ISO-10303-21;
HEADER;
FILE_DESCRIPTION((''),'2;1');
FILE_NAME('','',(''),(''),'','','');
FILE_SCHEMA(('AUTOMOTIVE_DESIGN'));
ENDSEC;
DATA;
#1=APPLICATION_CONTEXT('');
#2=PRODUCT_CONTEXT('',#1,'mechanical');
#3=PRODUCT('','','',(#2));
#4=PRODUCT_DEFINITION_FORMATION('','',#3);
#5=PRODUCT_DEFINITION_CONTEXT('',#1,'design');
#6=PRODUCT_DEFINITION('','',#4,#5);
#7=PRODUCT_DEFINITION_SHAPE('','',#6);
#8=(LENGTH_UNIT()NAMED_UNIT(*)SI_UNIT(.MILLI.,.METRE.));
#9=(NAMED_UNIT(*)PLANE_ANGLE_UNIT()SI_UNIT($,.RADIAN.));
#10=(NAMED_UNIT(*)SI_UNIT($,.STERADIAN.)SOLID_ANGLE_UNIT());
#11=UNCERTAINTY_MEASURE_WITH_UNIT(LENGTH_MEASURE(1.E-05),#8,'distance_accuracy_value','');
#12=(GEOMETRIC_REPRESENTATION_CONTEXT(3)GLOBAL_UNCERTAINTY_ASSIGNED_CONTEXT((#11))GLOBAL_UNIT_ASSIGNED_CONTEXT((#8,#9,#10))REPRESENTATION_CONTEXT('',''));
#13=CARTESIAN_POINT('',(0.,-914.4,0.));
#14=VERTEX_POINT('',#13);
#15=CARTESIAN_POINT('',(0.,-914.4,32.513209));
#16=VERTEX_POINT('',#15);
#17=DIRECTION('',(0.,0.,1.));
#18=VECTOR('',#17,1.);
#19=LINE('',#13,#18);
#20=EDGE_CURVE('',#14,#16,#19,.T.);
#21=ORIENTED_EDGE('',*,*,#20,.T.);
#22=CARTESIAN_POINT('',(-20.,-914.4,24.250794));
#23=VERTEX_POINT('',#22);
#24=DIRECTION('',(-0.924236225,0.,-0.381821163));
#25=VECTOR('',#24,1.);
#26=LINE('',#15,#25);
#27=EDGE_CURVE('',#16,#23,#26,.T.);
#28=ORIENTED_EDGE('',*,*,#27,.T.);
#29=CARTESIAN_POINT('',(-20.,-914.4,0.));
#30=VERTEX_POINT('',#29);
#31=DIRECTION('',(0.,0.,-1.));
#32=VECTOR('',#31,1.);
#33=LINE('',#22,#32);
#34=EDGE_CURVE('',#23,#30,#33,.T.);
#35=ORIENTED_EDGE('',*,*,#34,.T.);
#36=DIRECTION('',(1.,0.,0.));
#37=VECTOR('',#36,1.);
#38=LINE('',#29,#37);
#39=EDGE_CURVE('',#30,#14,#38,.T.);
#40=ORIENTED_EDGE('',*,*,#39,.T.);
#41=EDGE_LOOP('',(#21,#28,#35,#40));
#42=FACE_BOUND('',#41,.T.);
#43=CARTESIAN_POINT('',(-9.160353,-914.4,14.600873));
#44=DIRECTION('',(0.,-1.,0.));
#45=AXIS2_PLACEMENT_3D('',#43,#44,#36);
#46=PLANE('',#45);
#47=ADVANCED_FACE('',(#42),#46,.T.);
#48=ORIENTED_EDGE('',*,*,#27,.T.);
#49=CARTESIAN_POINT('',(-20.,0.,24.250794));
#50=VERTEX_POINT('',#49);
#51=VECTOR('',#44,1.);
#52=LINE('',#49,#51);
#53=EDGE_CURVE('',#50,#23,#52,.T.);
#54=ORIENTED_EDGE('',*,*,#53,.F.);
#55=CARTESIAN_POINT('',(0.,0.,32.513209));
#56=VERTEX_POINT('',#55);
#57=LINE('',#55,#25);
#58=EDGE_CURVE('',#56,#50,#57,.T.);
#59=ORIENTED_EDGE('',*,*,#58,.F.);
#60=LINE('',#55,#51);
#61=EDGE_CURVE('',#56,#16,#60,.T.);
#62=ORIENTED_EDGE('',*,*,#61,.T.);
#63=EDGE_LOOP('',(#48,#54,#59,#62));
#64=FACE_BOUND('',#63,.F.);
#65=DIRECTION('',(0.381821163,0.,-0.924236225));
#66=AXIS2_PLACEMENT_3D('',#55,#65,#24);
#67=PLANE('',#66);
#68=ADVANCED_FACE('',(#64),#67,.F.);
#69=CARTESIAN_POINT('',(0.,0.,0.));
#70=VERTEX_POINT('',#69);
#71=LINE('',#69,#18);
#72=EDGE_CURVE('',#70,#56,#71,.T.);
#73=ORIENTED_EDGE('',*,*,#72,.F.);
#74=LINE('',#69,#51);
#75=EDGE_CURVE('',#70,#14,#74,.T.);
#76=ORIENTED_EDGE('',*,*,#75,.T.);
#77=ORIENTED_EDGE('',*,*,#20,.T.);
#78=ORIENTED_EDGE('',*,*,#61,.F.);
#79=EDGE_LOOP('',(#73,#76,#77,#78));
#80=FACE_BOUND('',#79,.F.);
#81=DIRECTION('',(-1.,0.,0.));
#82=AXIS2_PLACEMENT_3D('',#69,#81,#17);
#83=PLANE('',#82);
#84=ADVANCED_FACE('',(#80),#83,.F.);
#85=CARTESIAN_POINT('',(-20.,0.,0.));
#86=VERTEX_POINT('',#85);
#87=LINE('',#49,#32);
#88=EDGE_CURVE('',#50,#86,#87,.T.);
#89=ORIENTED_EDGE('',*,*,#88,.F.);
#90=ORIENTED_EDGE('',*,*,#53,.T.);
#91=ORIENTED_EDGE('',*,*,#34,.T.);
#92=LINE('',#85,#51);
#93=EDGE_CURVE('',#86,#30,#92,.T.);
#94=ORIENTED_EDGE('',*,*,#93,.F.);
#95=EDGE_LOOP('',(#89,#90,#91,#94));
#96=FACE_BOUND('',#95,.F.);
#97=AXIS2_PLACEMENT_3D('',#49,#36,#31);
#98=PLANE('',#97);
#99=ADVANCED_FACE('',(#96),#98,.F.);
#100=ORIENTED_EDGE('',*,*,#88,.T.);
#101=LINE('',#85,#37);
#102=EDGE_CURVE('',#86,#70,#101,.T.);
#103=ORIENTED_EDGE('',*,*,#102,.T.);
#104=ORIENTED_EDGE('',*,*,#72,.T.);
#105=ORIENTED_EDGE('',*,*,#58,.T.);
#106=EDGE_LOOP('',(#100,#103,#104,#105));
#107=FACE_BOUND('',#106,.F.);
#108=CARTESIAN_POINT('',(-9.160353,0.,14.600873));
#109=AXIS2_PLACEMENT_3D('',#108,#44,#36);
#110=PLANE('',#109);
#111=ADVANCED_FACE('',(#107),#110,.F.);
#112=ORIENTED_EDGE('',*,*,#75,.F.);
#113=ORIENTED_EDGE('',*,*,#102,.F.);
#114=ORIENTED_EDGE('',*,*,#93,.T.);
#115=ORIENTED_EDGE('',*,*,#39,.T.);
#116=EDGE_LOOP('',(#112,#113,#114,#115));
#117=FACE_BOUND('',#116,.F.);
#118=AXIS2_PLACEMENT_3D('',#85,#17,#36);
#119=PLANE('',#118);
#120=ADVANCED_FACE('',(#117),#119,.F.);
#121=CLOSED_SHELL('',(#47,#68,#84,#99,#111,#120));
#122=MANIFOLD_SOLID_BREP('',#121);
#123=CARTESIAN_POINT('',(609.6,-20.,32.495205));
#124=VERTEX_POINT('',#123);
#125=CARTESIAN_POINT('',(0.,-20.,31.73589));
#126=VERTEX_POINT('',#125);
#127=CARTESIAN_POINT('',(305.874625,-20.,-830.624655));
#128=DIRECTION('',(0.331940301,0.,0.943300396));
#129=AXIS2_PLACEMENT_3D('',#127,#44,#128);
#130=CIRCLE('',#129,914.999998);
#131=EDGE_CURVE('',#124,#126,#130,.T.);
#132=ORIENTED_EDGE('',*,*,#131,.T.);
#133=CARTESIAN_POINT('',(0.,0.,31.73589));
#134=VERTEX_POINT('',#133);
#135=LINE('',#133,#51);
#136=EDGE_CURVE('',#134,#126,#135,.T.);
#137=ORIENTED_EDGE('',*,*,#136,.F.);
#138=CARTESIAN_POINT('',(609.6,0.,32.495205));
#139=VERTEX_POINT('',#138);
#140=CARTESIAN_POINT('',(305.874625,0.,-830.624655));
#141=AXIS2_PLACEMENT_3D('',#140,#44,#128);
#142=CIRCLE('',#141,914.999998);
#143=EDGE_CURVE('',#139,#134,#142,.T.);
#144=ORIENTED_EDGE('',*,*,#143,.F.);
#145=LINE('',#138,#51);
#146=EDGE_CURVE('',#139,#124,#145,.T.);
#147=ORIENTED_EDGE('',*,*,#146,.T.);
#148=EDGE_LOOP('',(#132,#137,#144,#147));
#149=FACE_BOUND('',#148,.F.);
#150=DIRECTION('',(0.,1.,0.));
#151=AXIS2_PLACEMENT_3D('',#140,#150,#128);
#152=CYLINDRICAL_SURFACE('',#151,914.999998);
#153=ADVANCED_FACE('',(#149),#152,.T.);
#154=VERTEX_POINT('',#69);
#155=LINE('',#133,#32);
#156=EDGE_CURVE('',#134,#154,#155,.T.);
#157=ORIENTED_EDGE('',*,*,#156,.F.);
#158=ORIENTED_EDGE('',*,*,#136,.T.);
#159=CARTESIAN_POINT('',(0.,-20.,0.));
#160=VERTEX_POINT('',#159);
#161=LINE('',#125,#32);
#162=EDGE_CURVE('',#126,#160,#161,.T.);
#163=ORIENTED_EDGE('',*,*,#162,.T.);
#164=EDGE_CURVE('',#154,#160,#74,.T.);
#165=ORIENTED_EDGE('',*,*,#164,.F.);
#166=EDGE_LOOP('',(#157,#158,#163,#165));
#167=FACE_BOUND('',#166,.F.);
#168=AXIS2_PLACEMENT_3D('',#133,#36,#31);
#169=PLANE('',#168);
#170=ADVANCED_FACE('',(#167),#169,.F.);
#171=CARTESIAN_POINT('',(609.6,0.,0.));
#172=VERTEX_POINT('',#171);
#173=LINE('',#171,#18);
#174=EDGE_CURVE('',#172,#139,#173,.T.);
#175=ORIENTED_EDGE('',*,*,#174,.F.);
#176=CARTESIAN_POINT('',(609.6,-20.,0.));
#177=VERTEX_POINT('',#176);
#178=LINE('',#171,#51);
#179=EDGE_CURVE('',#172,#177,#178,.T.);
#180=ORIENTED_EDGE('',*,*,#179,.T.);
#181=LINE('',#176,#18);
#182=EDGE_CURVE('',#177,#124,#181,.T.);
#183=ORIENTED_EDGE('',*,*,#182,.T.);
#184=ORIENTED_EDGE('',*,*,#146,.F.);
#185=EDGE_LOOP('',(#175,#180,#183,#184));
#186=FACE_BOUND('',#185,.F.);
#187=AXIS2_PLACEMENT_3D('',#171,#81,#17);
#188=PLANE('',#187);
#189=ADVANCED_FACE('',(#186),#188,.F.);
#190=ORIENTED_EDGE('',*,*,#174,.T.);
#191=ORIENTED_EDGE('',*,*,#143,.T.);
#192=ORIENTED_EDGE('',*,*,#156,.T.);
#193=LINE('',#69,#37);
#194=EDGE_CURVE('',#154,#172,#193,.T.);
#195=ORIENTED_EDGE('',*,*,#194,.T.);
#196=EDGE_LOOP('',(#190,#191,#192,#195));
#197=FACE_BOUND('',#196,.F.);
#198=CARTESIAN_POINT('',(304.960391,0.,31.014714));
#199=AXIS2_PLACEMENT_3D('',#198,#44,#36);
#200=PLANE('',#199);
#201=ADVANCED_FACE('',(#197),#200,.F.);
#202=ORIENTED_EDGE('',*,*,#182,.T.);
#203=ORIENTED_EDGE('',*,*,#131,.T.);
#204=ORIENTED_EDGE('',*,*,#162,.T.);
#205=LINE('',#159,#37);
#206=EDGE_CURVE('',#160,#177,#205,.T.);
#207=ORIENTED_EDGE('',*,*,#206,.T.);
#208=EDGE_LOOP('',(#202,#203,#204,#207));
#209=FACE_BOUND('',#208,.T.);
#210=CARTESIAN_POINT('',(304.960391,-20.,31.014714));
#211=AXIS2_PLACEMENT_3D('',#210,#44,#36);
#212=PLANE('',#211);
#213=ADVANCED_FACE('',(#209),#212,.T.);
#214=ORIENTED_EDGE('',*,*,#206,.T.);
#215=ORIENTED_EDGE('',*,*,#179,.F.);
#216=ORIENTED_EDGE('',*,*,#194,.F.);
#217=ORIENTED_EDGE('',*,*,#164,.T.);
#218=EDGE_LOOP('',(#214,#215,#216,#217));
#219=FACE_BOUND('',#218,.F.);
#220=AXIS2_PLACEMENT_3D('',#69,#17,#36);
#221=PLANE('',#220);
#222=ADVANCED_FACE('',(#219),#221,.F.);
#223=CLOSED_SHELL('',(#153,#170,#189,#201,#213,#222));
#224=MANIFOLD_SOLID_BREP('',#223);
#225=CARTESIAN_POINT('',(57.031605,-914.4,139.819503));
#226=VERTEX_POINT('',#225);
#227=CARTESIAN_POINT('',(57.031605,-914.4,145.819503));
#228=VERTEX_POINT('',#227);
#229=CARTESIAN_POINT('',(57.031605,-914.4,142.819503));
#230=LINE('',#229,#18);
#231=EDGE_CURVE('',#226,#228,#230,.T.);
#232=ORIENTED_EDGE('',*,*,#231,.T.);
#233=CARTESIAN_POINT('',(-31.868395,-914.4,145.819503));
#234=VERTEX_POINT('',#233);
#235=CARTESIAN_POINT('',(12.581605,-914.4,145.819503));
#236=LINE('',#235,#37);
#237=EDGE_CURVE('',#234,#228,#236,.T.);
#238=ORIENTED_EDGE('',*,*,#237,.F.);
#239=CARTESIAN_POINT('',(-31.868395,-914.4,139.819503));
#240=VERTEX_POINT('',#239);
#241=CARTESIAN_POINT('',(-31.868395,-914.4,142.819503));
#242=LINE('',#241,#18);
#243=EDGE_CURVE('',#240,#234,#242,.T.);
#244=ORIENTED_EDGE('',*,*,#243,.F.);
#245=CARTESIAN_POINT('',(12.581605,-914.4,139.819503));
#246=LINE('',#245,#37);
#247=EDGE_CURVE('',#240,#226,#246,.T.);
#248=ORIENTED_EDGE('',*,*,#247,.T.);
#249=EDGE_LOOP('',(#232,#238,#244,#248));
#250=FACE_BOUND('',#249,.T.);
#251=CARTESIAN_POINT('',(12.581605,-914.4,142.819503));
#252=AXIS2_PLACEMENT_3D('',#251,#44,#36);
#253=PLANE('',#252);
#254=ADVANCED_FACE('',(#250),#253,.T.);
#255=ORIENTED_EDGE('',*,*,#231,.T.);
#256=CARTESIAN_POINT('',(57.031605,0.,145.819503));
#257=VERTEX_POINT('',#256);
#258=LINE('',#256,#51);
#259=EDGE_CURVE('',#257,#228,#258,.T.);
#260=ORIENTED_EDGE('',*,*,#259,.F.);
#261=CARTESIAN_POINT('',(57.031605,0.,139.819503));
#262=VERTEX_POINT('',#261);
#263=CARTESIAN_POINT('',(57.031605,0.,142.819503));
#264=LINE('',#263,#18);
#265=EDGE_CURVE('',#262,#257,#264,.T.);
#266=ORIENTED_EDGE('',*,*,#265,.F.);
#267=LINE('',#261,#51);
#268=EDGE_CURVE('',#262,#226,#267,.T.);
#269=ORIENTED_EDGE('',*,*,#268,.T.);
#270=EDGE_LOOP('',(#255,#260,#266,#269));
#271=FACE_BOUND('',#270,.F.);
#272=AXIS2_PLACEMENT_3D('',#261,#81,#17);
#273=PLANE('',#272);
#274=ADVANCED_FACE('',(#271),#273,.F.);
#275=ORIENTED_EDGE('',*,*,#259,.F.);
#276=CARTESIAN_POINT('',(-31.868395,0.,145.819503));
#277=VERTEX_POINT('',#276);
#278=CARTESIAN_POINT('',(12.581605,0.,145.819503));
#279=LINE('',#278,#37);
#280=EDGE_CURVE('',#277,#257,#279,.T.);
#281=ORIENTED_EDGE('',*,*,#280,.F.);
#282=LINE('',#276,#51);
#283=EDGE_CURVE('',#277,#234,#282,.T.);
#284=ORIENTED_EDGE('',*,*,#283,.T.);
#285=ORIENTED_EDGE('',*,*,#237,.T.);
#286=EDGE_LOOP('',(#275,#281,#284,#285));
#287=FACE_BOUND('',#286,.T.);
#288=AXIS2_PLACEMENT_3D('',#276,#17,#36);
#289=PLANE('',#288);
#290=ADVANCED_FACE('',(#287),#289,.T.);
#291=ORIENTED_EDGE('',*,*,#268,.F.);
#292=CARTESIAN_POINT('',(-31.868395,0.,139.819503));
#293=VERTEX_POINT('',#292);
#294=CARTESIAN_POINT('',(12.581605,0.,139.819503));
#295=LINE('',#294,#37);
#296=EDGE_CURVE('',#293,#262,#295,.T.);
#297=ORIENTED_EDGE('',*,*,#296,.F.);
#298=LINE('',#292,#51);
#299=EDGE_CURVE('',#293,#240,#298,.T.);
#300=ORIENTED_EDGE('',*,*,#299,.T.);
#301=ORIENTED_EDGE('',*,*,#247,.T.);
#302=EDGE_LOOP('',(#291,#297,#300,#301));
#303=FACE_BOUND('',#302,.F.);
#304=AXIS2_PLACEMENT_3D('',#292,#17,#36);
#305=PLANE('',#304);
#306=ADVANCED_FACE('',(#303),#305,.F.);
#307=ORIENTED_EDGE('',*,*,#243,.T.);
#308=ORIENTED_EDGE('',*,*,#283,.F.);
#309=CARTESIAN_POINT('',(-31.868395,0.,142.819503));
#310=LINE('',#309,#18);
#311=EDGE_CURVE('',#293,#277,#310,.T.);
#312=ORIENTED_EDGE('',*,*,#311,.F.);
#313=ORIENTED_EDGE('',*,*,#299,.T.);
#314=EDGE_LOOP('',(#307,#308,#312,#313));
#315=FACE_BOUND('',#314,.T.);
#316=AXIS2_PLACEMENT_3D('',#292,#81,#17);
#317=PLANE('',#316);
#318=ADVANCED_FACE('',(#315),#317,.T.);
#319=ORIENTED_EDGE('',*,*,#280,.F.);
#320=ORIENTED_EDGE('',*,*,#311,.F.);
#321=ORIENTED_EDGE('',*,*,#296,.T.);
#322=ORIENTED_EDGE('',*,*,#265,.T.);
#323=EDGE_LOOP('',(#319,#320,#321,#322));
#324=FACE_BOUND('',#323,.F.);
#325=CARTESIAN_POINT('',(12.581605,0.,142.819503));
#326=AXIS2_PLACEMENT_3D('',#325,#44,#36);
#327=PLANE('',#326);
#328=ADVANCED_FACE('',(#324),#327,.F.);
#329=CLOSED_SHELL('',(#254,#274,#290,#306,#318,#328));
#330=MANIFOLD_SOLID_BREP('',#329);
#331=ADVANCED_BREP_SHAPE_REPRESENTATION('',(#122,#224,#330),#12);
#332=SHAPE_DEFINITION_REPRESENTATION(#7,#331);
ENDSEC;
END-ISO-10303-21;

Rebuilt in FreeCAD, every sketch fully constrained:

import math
import FreeCAD as App
import Part
import Sketcher
from FreeCAD import Vector
Q = App.Units.Quantity


def add_polygon(sketch, points):
    """Adds a closed chain of lines whose ends are joined by coincident constraints."""
    first, n = sketch.GeometryCount, len(points)
    for a, b in zip(points, points[1:] + points[:1]):
        sketch.addGeometry(Part.LineSegment(App.Vector(*a, 0), App.Vector(*b, 0)), False)
    for i in range(n):
        sketch.addConstraint(Sketcher.Constraint("Coincident", first + i, 2, first + (i + 1) % n, 1))

doc = App.newDocument("Part")
body = doc.addObject("PartDesign::Body", "Body")

# Sketch on XZ plane
sketch1 = body.newObject("Sketcher::SketchObject", "Sketch")
sketch1.AttachmentSupport = (doc.getObject("XZ_Plane"), [""])
sketch1.MapMode = "FlatFace"
sketch1.addGeometry(Part.LineSegment(Vector(0, 32, 0), Vector(0, 0, 0)), False)
sketch1.addGeometry(Part.LineSegment(Vector(0, 0, 0), Vector(610, 0, 0)), False)
sketch1.addGeometry(Part.LineSegment(Vector(610, 0, 0), Vector(610, 32, 0)), False)
sketch1.addGeometry(Part.ArcOfCircle(Part.Circle(Vector(306, -831, 0), Vector(0, 0, 1), 915), math.radians(71), math.radians(110)), False)
sketch1.addConstraint(Sketcher.Constraint("Coincident", 0, 2, 1, 1))
sketch1.addConstraint(Sketcher.Constraint("Coincident", 1, 2, 2, 1))
sketch1.addConstraint(Sketcher.Constraint("Coincident", 2, 2, 3, 1))
sketch1.addConstraint(Sketcher.Constraint("Coincident", 3, 2, 0, 1))
sketch1.addConstraint(Sketcher.Constraint("Vertical", 0))
sketch1.addConstraint(Sketcher.Constraint("Horizontal", 1))
sketch1.addConstraint(Sketcher.Constraint("Vertical", 2))
sketch1.addConstraint(Sketcher.Constraint("Coincident", 0, 2, -1, 1))
sketch1.addConstraint(Sketcher.Constraint("DistanceX", 1, 1, 1, 2, Q("24 in")))
sketch1.addConstraint(Sketcher.Constraint("Radius", 3, 914.999998))
sketch1.addConstraint(Sketcher.Constraint("DistanceY", 0, 2, 0, 1, 31.73589))
sketch1.addConstraint(Sketcher.Constraint("DistanceY", 2, 1, 2, 2, 32.495205))
pad1 = body.newObject("PartDesign::Pad", "Pad")
pad1.Profile = sketch1
pad1.Length = 20
body2 = doc.addObject("PartDesign::Body", "Body001")

# Sketch on XZ plane
sketch2 = body2.newObject("Sketcher::SketchObject", "Sketch001")
sketch2.AttachmentSupport = (doc.getObject("XZ_Plane001"), [""])
sketch2.MapMode = "FlatFace"
add_polygon(sketch2, [(-32, 146), (-32, 140), (57, 140), (57, 146)])  # lines 0-3
sketch2.addConstraint(Sketcher.Constraint("Vertical", 0))
sketch2.addConstraint(Sketcher.Constraint("Horizontal", 1))
sketch2.addConstraint(Sketcher.Constraint("Vertical", 2))
sketch2.addConstraint(Sketcher.Constraint("Horizontal", 3))
sketch2.addConstraint(Sketcher.Constraint("DistanceX", 1, 1, 1, 2, Q("3.5 in")))
sketch2.addConstraint(Sketcher.Constraint("DistanceY", 0, 2, 0, 1, 6.0))
sketch2.addConstraint(Sketcher.Constraint("DistanceX", 0, 2, -1, 1, 31.868395))
sketch2.addConstraint(Sketcher.Constraint("DistanceY", -1, 1, 0, 2, 139.819503))
pad2 = body2.newObject("PartDesign::Pad", "Pad001")
pad2.Profile = sketch2
pad2.Length = Q("36 in")
body3 = doc.addObject("PartDesign::Body", "Body002")

# Sketch on XZ plane
sketch3 = body3.newObject("Sketcher::SketchObject", "Sketch002")
sketch3.AttachmentSupport = (doc.getObject("XZ_Plane002"), [""])
sketch3.MapMode = "FlatFace"
add_polygon(sketch3, [(-20, 0), (0, 0), (0, 33), (-20, 24)])  # lines 0-3
sketch3.addConstraint(Sketcher.Constraint("Horizontal", 0))
sketch3.addConstraint(Sketcher.Constraint("Vertical", 1))
sketch3.addConstraint(Sketcher.Constraint("Vertical", 3))
sketch3.addConstraint(Sketcher.Constraint("Coincident", 0, 2, -1, 1))
sketch3.addConstraint(Sketcher.Constraint("DistanceX", 0, 1, 0, 2, 20.0))
sketch3.addConstraint(Sketcher.Constraint("DistanceY", 1, 1, 1, 2, 32.513209))
sketch3.addConstraint(Sketcher.Constraint("Distance", 2, 21.639489))
pad3 = body3.newObject("PartDesign::Pad", "Pad002")
pad3.Profile = sketch3
pad3.Length = Q("36 in")

doc.recompute()
